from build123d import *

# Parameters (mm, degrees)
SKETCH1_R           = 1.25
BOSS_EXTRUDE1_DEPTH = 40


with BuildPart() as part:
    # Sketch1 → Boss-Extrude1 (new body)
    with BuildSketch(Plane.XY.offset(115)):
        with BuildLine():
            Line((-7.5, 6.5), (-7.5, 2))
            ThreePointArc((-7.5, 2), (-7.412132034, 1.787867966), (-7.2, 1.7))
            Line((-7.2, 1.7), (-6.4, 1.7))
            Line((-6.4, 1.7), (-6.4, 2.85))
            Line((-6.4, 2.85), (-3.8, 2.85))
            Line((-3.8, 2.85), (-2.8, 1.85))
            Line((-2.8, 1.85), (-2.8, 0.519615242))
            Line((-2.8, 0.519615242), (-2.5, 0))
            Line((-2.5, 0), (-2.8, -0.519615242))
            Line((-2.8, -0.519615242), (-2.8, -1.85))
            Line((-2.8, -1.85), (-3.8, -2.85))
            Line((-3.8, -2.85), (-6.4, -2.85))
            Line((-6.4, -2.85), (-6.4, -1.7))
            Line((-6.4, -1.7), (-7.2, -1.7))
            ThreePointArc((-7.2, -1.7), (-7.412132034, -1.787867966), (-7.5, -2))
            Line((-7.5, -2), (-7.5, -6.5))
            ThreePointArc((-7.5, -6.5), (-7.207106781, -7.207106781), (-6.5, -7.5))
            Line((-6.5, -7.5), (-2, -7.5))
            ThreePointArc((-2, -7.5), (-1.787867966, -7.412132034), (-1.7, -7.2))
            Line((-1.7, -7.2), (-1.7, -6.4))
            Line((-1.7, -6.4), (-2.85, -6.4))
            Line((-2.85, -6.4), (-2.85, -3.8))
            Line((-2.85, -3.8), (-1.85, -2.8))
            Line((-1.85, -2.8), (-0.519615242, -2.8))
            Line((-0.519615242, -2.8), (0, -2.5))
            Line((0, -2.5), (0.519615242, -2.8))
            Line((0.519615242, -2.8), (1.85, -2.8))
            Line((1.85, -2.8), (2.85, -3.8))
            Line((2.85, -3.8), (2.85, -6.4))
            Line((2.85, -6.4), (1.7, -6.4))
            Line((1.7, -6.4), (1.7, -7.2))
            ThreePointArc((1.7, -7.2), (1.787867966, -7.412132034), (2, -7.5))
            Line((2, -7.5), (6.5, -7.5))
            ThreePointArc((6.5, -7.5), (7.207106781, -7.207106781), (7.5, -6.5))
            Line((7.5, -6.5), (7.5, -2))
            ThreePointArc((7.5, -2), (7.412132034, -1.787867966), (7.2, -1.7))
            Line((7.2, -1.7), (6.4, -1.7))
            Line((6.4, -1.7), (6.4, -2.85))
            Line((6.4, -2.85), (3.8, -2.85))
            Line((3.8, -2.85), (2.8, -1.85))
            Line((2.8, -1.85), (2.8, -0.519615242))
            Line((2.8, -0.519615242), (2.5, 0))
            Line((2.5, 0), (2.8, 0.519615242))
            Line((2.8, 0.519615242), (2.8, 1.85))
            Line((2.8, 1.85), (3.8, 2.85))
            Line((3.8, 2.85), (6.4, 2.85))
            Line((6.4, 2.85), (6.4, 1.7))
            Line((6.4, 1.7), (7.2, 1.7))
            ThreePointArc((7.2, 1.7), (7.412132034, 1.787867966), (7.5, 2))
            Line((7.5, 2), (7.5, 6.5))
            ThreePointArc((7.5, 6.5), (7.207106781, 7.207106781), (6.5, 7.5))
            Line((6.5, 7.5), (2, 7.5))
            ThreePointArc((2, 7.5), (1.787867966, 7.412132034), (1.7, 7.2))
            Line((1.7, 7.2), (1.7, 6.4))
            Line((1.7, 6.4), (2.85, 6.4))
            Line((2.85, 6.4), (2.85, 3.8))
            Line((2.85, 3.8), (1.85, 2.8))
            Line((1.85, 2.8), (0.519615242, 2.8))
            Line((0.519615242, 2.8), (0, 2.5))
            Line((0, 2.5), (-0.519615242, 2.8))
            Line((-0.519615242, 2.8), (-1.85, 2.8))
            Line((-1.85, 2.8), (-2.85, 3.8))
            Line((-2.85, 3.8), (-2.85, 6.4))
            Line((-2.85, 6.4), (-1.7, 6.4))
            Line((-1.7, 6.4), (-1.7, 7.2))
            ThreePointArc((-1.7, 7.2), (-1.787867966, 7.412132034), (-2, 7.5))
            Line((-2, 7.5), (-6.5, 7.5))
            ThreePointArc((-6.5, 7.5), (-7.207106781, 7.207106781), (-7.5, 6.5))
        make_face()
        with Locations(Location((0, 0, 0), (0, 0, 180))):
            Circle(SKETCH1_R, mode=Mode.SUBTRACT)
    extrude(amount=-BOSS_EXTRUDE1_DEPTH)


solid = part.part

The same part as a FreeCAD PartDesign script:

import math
import FreeCAD as App
import Part
import Sketcher
Q = App.Units.Quantity

doc = App.newDocument("Part")
body = doc.addObject("PartDesign::Body", "Body")

# Sketch on XY plane
sketch1 = body.newObject("Sketcher::SketchObject", "Sketch")
sketch1.AttachmentSupport = (doc.getObject("XY_Plane"), [""])
sketch1.MapMode = "FlatFace"
sketch1.AttachmentOffset = App.Placement(App.Vector(0, 0, 115), App.Rotation())
sketch1.addGeometry([
    Part.LineSegment(App.Vector(-7.5, 6.5, 0), App.Vector(-7.5, 2, 0)),  # 0
    Part.ArcOfCircle(Part.Circle(App.Vector(-7.2, 2, 0), App.Vector(0, 0, 1), 0.3), math.radians(-180), math.radians(-90)),  # 1
    Part.LineSegment(App.Vector(-7.2, 1.7, 0), App.Vector(-6.4, 1.7, 0)),  # 2
    Part.LineSegment(App.Vector(-6.4, 1.7, 0), App.Vector(-6.4, 2.85, 0)),  # 3
    Part.LineSegment(App.Vector(-6.4, 2.85, 0), App.Vector(-3.8, 2.85, 0)),  # 4
    Part.LineSegment(App.Vector(-3.8, 2.85, 0), App.Vector(-2.8, 1.85, 0)),  # 5
    Part.LineSegment(App.Vector(-2.8, 1.85, 0), App.Vector(-2.8, 0.52, 0)),  # 6
    Part.LineSegment(App.Vector(-2.8, 0.52, 0), App.Vector(-2.5, 0, 0)),  # 7
    Part.LineSegment(App.Vector(-2.5, 0, 0), App.Vector(-2.8, -0.52, 0)),  # 8
    Part.LineSegment(App.Vector(-2.8, -0.52, 0), App.Vector(-2.8, -1.85, 0)),  # 9
    Part.LineSegment(App.Vector(-2.8, -1.85, 0), App.Vector(-3.8, -2.85, 0)),  # 10
    Part.LineSegment(App.Vector(-3.8, -2.85, 0), App.Vector(-6.4, -2.85, 0)),  # 11
    Part.LineSegment(App.Vector(-6.4, -2.85, 0), App.Vector(-6.4, -1.7, 0)),  # 12
    Part.LineSegment(App.Vector(-6.4, -1.7, 0), App.Vector(-7.2, -1.7, 0)),  # 13
    Part.ArcOfCircle(Part.Circle(App.Vector(-7.2, -2, 0), App.Vector(0, 0, 1), 0.3), math.radians(90), math.radians(180)),  # 14
    Part.LineSegment(App.Vector(-7.5, -2, 0), App.Vector(-7.5, -6.5, 0)),  # 15
    Part.ArcOfCircle(Part.Circle(App.Vector(-6.5, -6.5, 0), App.Vector(0, 0, 1), 1), math.radians(-180), math.radians(-90)),  # 16
    Part.LineSegment(App.Vector(-6.5, -7.5, 0), App.Vector(-2, -7.5, 0)),  # 17
    Part.ArcOfCircle(Part.Circle(App.Vector(-2, -7.2, 0), App.Vector(0, 0, 1), 0.3), math.radians(-90), math.radians(0)),  # 18
    Part.LineSegment(App.Vector(-1.7, -7.2, 0), App.Vector(-1.7, -6.4, 0)),  # 19
    Part.LineSegment(App.Vector(-1.7, -6.4, 0), App.Vector(-2.85, -6.4, 0)),  # 20
    Part.LineSegment(App.Vector(-2.85, -6.4, 0), App.Vector(-2.85, -3.8, 0)),  # 21
    Part.LineSegment(App.Vector(-2.85, -3.8, 0), App.Vector(-1.85, -2.8, 0)),  # 22
    Part.LineSegment(App.Vector(-1.85, -2.8, 0), App.Vector(-0.52, -2.8, 0)),  # 23
    Part.LineSegment(App.Vector(-0.52, -2.8, 0), App.Vector(0, -2.5, 0)),  # 24
    Part.LineSegment(App.Vector(0, -2.5, 0), App.Vector(0.52, -2.8, 0)),  # 25
    Part.LineSegment(App.Vector(0.52, -2.8, 0), App.Vector(1.85, -2.8, 0)),  # 26
    Part.LineSegment(App.Vector(1.85, -2.8, 0), App.Vector(2.85, -3.8, 0)),  # 27
    Part.LineSegment(App.Vector(2.85, -3.8, 0), App.Vector(2.85, -6.4, 0)),  # 28
    Part.LineSegment(App.Vector(2.85, -6.4, 0), App.Vector(1.7, -6.4, 0)),  # 29
    Part.LineSegment(App.Vector(1.7, -6.4, 0), App.Vector(1.7, -7.2, 0)),  # 30
    Part.ArcOfCircle(Part.Circle(App.Vector(2, -7.2, 0), App.Vector(0, 0, 1), 0.3), math.radians(-180), math.radians(-90)),  # 31
    Part.LineSegment(App.Vector(2, -7.5, 0), App.Vector(6.5, -7.5, 0)),  # 32
    Part.ArcOfCircle(Part.Circle(App.Vector(6.5, -6.5, 0), App.Vector(0, 0, 1), 1), math.radians(-90), math.radians(0)),  # 33
    Part.LineSegment(App.Vector(7.5, -6.5, 0), App.Vector(7.5, -2, 0)),  # 34
    Part.ArcOfCircle(Part.Circle(App.Vector(7.2, -2, 0), App.Vector(0, 0, 1), 0.3), math.radians(0), math.radians(90)),  # 35
    Part.LineSegment(App.Vector(7.2, -1.7, 0), App.Vector(6.4, -1.7, 0)),  # 36
    Part.LineSegment(App.Vector(6.4, -1.7, 0), App.Vector(6.4, -2.85, 0)),  # 37
    Part.LineSegment(App.Vector(6.4, -2.85, 0), App.Vector(3.8, -2.85, 0)),  # 38
    Part.LineSegment(App.Vector(3.8, -2.85, 0), App.Vector(2.8, -1.85, 0)),  # 39
    Part.LineSegment(App.Vector(2.8, -1.85, 0), App.Vector(2.8, -0.52, 0)),  # 40
    Part.LineSegment(App.Vector(2.8, -0.52, 0), App.Vector(2.5, 0, 0)),  # 41
    Part.LineSegment(App.Vector(2.5, 0, 0), App.Vector(2.8, 0.52, 0)),  # 42
    Part.LineSegment(App.Vector(2.8, 0.52, 0), App.Vector(2.8, 1.85, 0)),  # 43
    Part.LineSegment(App.Vector(2.8, 1.85, 0), App.Vector(3.8, 2.85, 0)),  # 44
    Part.LineSegment(App.Vector(3.8, 2.85, 0), App.Vector(6.4, 2.85, 0)),  # 45
    Part.LineSegment(App.Vector(6.4, 2.85, 0), App.Vector(6.4, 1.7, 0)),  # 46
    Part.LineSegment(App.Vector(6.4, 1.7, 0), App.Vector(7.2, 1.7, 0)),  # 47
    Part.ArcOfCircle(Part.Circle(App.Vector(7.2, 2, 0), App.Vector(0, 0, 1), 0.3), math.radians(-90), math.radians(0)),  # 48
    Part.LineSegment(App.Vector(7.5, 2, 0), App.Vector(7.5, 6.5, 0)),  # 49
    Part.ArcOfCircle(Part.Circle(App.Vector(6.5, 6.5, 0), App.Vector(0, 0, 1), 1), math.radians(0), math.radians(90)),  # 50
    Part.LineSegment(App.Vector(6.5, 7.5, 0), App.Vector(2, 7.5, 0)),  # 51
    Part.ArcOfCircle(Part.Circle(App.Vector(2, 7.2, 0), App.Vector(0, 0, 1), 0.3), math.radians(90), math.radians(180)),  # 52
    Part.LineSegment(App.Vector(1.7, 7.2, 0), App.Vector(1.7, 6.4, 0)),  # 53
    Part.LineSegment(App.Vector(1.7, 6.4, 0), App.Vector(2.85, 6.4, 0)),  # 54
    Part.LineSegment(App.Vector(2.85, 6.4, 0), App.Vector(2.85, 3.8, 0)),  # 55
    Part.LineSegment(App.Vector(2.85, 3.8, 0), App.Vector(1.85, 2.8, 0)),  # 56
    Part.LineSegment(App.Vector(1.85, 2.8, 0), App.Vector(0.52, 2.8, 0)),  # 57
    Part.LineSegment(App.Vector(0.52, 2.8, 0), App.Vector(0, 2.5, 0)),  # 58
    Part.LineSegment(App.Vector(0, 2.5, 0), App.Vector(-0.52, 2.8, 0)),  # 59
    Part.LineSegment(App.Vector(-0.52, 2.8, 0), App.Vector(-1.85, 2.8, 0)),  # 60
    Part.LineSegment(App.Vector(-1.85, 2.8, 0), App.Vector(-2.85, 3.8, 0)),  # 61
    Part.LineSegment(App.Vector(-2.85, 3.8, 0), App.Vector(-2.85, 6.4, 0)),  # 62
    Part.LineSegment(App.Vector(-2.85, 6.4, 0), App.Vector(-1.7, 6.4, 0)),  # 63
    Part.LineSegment(App.Vector(-1.7, 6.4, 0), App.Vector(-1.7, 7.2, 0)),  # 64
    Part.ArcOfCircle(Part.Circle(App.Vector(-2, 7.2, 0), App.Vector(0, 0, 1), 0.3), math.radians(0), math.radians(90)),  # 65
    Part.LineSegment(App.Vector(-2, 7.5, 0), App.Vector(-6.5, 7.5, 0)),  # 66
    Part.ArcOfCircle(Part.Circle(App.Vector(-6.5, 6.5, 0), App.Vector(0, 0, 1), 1), math.radians(90), math.radians(180)),  # 67
    Part.Circle(App.Vector(0, 0, 0), App.Vector(0, 0, 1), 1.25),  # 68
], False)
sketch1.addConstraint([
    Sketcher.Constraint("Tangent", 0, 2, 1, 1),
    Sketcher.Constraint("Tangent", 1, 2, 2, 1),
    Sketcher.Constraint("Coincident", 2, 2, 3, 1),
    Sketcher.Constraint("Coincident", 3, 2, 4, 1),
    Sketcher.Constraint("Coincident", 4, 2, 5, 1),
    Sketcher.Constraint("Coincident", 5, 2, 6, 1),
    Sketcher.Constraint("Coincident", 6, 2, 7, 1),
    Sketcher.Constraint("Coincident", 7, 2, 8, 1),
    Sketcher.Constraint("Coincident", 8, 2, 9, 1),
    Sketcher.Constraint("Coincident", 9, 2, 10, 1),
    Sketcher.Constraint("Coincident", 10, 2, 11, 1),
    Sketcher.Constraint("Coincident", 11, 2, 12, 1),
    Sketcher.Constraint("Coincident", 12, 2, 13, 1),
    Sketcher.Constraint("Tangent", 13, 2, 14, 1),
    Sketcher.Constraint("Tangent", 14, 2, 15, 1),
    Sketcher.Constraint("Tangent", 15, 2, 16, 1),
    Sketcher.Constraint("Tangent", 16, 2, 17, 1),
    Sketcher.Constraint("Tangent", 17, 2, 18, 1),
    Sketcher.Constraint("Tangent", 18, 2, 19, 1),
    Sketcher.Constraint("Coincident", 19, 2, 20, 1),
    Sketcher.Constraint("Coincident", 20, 2, 21, 1),
    Sketcher.Constraint("Coincident", 21, 2, 22, 1),
    Sketcher.Constraint("Coincident", 22, 2, 23, 1),
    Sketcher.Constraint("Coincident", 23, 2, 24, 1),
    Sketcher.Constraint("Coincident", 24, 2, 25, 1),
    Sketcher.Constraint("Coincident", 25, 2, 26, 1),
    Sketcher.Constraint("Coincident", 26, 2, 27, 1),
    Sketcher.Constraint("Coincident", 27, 2, 28, 1),
    Sketcher.Constraint("Coincident", 28, 2, 29, 1),
    Sketcher.Constraint("Coincident", 29, 2, 30, 1),
    Sketcher.Constraint("Tangent", 30, 2, 31, 1),
    Sketcher.Constraint("Tangent", 31, 2, 32, 1),
    Sketcher.Constraint("Tangent", 32, 2, 33, 1),
    Sketcher.Constraint("Tangent", 33, 2, 34, 1),
    Sketcher.Constraint("Tangent", 34, 2, 35, 1),
    Sketcher.Constraint("Tangent", 35, 2, 36, 1),
    Sketcher.Constraint("Coincident", 36, 2, 37, 1),
    Sketcher.Constraint("Coincident", 37, 2, 38, 1),
    Sketcher.Constraint("Coincident", 38, 2, 39, 1),
    Sketcher.Constraint("Coincident", 39, 2, 40, 1),
    Sketcher.Constraint("Coincident", 40, 2, 41, 1),
    Sketcher.Constraint("Coincident", 41, 2, 42, 1),
    Sketcher.Constraint("Coincident", 42, 2, 43, 1),
    Sketcher.Constraint("Coincident", 43, 2, 44, 1),
    Sketcher.Constraint("Coincident", 44, 2, 45, 1),
    Sketcher.Constraint("Coincident", 45, 2, 46, 1),
    Sketcher.Constraint("Coincident", 46, 2, 47, 1),
    Sketcher.Constraint("Tangent", 47, 2, 48, 1),
    Sketcher.Constraint("Tangent", 48, 2, 49, 1),
    Sketcher.Constraint("Tangent", 49, 2, 50, 1),
    Sketcher.Constraint("Tangent", 50, 2, 51, 1),
    Sketcher.Constraint("Tangent", 51, 2, 52, 1),
    Sketcher.Constraint("Tangent", 52, 2, 53, 1),
    Sketcher.Constraint("Coincident", 53, 2, 54, 1),
    Sketcher.Constraint("Coincident", 54, 2, 55, 1),
    Sketcher.Constraint("Coincident", 55, 2, 56, 1),
    Sketcher.Constraint("Coincident", 56, 2, 57, 1),
    Sketcher.Constraint("Coincident", 57, 2, 58, 1),
    Sketcher.Constraint("Coincident", 58, 2, 59, 1),
    Sketcher.Constraint("Coincident", 59, 2, 60, 1),
    Sketcher.Constraint("Coincident", 60, 2, 61, 1),
    Sketcher.Constraint("Coincident", 61, 2, 62, 1),
    Sketcher.Constraint("Coincident", 62, 2, 63, 1),
    Sketcher.Constraint("Coincident", 63, 2, 64, 1),
    Sketcher.Constraint("Tangent", 64, 2, 65, 1),
    Sketcher.Constraint("Tangent", 65, 2, 66, 1),
    Sketcher.Constraint("Tangent", 66, 2, 67, 1),
    Sketcher.Constraint("Tangent", 67, 2, 0, 1),
    Sketcher.Constraint("Vertical", 0),
    Sketcher.Constraint("Horizontal", 2),
    Sketcher.Constraint("Vertical", 3),
    Sketcher.Constraint("Horizontal", 4),
    Sketcher.Constraint("Vertical", 6),
    Sketcher.Constraint("Vertical", 9),
    Sketcher.Constraint("Horizontal", 11),
    Sketcher.Constraint("Vertical", 12),
    Sketcher.Constraint("Horizontal", 13),
    Sketcher.Constraint("Vertical", 15),
    Sketcher.Constraint("Horizontal", 17),
    Sketcher.Constraint("Vertical", 19),
    Sketcher.Constraint("Horizontal", 20),
    Sketcher.Constraint("Vertical", 21),
    Sketcher.Constraint("Horizontal", 23),
    Sketcher.Constraint("Horizontal", 26),
    Sketcher.Constraint("Vertical", 28),
    Sketcher.Constraint("Horizontal", 29),
    Sketcher.Constraint("Vertical", 30),
    Sketcher.Constraint("Horizontal", 32),
    Sketcher.Constraint("Vertical", 34),
    Sketcher.Constraint("Horizontal", 36),
    Sketcher.Constraint("Vertical", 37),
    Sketcher.Constraint("Horizontal", 38),
    Sketcher.Constraint("Vertical", 40),
    Sketcher.Constraint("Vertical", 43),
    Sketcher.Constraint("Horizontal", 45),
    Sketcher.Constraint("Vertical", 46),
    Sketcher.Constraint("Horizontal", 47),
    Sketcher.Constraint("Vertical", 49),
    Sketcher.Constraint("Horizontal", 51),
    Sketcher.Constraint("Vertical", 53),
    Sketcher.Constraint("Horizontal", 54),
    Sketcher.Constraint("Vertical", 55),
    Sketcher.Constraint("Horizontal", 57),
    Sketcher.Constraint("Horizontal", 60),
    Sketcher.Constraint("Vertical", 62),
    Sketcher.Constraint("Horizontal", 63),
    Sketcher.Constraint("Vertical", 64),
    Sketcher.Constraint("Horizontal", 66),
    Sketcher.Constraint("Coincident", 68, 3, -1, 1),
    Sketcher.Constraint("Equal", 1, 14),
    Sketcher.Constraint("Equal", 14, 18),
    Sketcher.Constraint("Equal", 18, 31),
    Sketcher.Constraint("Equal", 16, 33),
    Sketcher.Constraint("Equal", 31, 35),
    Sketcher.Constraint("Equal", 35, 48),
    Sketcher.Constraint("Equal", 33, 50),
    Sketcher.Constraint("Equal", 48, 52),
    Sketcher.Constraint("Equal", 52, 65),
    Sketcher.Constraint("Equal", 50, 67),
    Sketcher.Constraint("Symmetric", 1, 3, 35, 3, -1, 1),
    Sketcher.Constraint("Symmetric", 14, 3, 48, 3, -1, 1),
    Sketcher.Constraint("Symmetric", 18, 3, 52, 3, -1, 1),
    Sketcher.Constraint("Symmetric", 31, 3, 65, 3, -1, 1),
    Sketcher.Constraint("Symmetric", 3, 2, 37, 2, -1, 1),
    Sketcher.Constraint("Symmetric", 5, 2, 39, 2, -1, 1),
    Sketcher.Constraint("Symmetric", 7, 2, 41, 2, -1, 1),
    Sketcher.Constraint("Symmetric", 8, 2, 42, 2, -1, 1),
    Sketcher.Constraint("Symmetric", 10, 2, 44, 2, -1, 1),
    Sketcher.Constraint("Symmetric", 20, 2, 54, 2, -1, 1),
    Sketcher.Constraint("Symmetric", 22, 2, 56, 2, -1, 1),
    Sketcher.Constraint("Symmetric", 24, 2, 58, 2, -1, 1),
    Sketcher.Constraint("Symmetric", 25, 2, 59, 2, -1, 1),
    Sketcher.Constraint("Symmetric", 27, 2, 61, 2, -1, 1),
    Sketcher.Constraint("Symmetric", 18, 3, 31, 3, -2),
    Sketcher.Constraint("Symmetric", 14, 3, 35, 3, -2),
    Sketcher.Constraint("Symmetric", 23, 2, 25, 2, -2),
    Sketcher.Constraint("Symmetric", 21, 2, 27, 2, -2),
    Sketcher.Constraint("Symmetric", 11, 2, 37, 2, -2),
    Sketcher.Constraint("Symmetric", 9, 2, 39, 2, -2),
    Sketcher.Constraint("PointOnObject", 7, 2, -1),
    Sketcher.Constraint("PointOnObject", 24, 2, -2),
    Sketcher.Constraint("Perpendicular", 5, 10),
    Sketcher.Constraint("Parallel", 10, 22),
    Sketcher.Constraint("Perpendicular", 7, 24),
    Sketcher.Constraint("Perpendicular", 8, 25),
    Sketcher.Constraint("Perpendicular", 22, 27),
    Sketcher.Constraint("Parallel", 27, 39),
    Sketcher.Constraint("Perpendicular", 24, 41),
    Sketcher.Constraint("Perpendicular", 39, 44),
    Sketcher.Constraint("Parallel", 44, 56),
    Sketcher.Constraint("Perpendicular", 41, 58),
    Sketcher.Constraint("Perpendicular", 56, 61),
    Sketcher.Constraint("Horizontal", 20, 2, 28, 2),
    Sketcher.Constraint("Horizontal", 54, 2, 62, 2),
    Sketcher.Constraint("Vertical", 4, 2, 10, 2),
    Sketcher.Constraint("Vertical", 37, 2, 45, 2),
    Sketcher.Constraint("Equal", 66, 0),
    Sketcher.Constraint("Equal", 63, 3),
    Sketcher.Constraint("Equal", 60, 6),
    Sketcher.Constraint("Equal", 47, 19),
    Sketcher.Constraint("Equal", 45, 21),
    Sketcher.Constraint("Equal", 10, 22),
    Sketcher.Constraint("Equal", 8, 24),
    Sketcher.Constraint("Radius", 16, 1.0),
    Sketcher.Constraint("Diameter", 68, 2.5),
    Sketcher.Constraint("Radius", 1, 0.3),
    Sketcher.Constraint("Angle", 7, Q("-60 deg")),
    Sketcher.Constraint("DistanceX", 2, 1, 2, 2, 0.8),
    Sketcher.Constraint("DistanceX", 4, 1, 4, 2, 2.6),
    Sketcher.Constraint("DistanceX", 17, 1, 17, 2, 4.5),
    Sketcher.Constraint("DistanceY", -1, 1, 1, 3, 2.0),
    Sketcher.Constraint("Distance", 7, 0.6),
    Sketcher.Constraint("DistanceX", 20, 2, 20, 1, 1.15),
    Sketcher.Constraint("DistanceX", 5, 2, -1, 1, 2.8),
])
pad1 = body.newObject("PartDesign::Pad", "Pad")
pad1.Profile = sketch1
pad1.Length = 40
pad1.Reversed = True

doc.recompute()
